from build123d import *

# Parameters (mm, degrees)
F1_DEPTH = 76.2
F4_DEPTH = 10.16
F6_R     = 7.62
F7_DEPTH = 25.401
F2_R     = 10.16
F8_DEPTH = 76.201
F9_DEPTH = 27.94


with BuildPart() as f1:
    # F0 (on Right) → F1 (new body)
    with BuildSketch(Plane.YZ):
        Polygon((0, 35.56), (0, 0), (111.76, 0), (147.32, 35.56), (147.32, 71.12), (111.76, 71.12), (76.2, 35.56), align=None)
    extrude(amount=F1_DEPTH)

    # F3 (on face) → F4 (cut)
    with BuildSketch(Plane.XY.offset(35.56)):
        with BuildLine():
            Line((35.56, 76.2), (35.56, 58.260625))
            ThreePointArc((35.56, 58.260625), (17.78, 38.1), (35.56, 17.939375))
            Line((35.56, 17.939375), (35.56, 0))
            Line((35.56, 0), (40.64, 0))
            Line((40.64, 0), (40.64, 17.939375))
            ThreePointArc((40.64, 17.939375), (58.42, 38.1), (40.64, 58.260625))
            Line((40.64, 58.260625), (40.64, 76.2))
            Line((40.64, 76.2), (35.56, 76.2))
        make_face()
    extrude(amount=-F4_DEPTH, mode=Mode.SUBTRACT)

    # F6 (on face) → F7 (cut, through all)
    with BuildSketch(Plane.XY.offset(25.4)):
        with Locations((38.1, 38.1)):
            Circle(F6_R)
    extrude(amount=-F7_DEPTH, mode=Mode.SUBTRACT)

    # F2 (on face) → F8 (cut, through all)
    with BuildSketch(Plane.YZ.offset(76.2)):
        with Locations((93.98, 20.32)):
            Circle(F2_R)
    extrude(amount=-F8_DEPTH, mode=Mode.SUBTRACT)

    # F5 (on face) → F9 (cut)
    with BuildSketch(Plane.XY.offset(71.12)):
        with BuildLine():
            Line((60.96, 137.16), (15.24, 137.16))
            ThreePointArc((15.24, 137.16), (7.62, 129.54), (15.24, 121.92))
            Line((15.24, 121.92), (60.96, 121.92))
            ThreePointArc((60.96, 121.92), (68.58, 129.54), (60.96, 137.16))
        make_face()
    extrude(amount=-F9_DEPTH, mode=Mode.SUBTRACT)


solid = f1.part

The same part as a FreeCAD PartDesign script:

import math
import FreeCAD as App
import Part
import Sketcher
Q = App.Units.Quantity

doc = App.newDocument("Part")
body = doc.addObject("PartDesign::Body", "Body")

# Sketch on YZ plane
sketch1 = body.newObject("Sketcher::SketchObject", "Sketch")
sketch1.AttachmentSupport = (doc.getObject("YZ_Plane"), [""])
sketch1.MapMode = "FlatFace"
sketch1.addGeometry([
    Part.LineSegment(App.Vector(0, 36, 0), App.Vector(0, 0, 0)),  # 0
    Part.LineSegment(App.Vector(0, 0, 0), App.Vector(112, 0, 0)),  # 1
    Part.LineSegment(App.Vector(112, 0, 0), App.Vector(147, 36, 0)),  # 2
    Part.LineSegment(App.Vector(147, 36, 0), App.Vector(147, 71, 0)),  # 3
    Part.LineSegment(App.Vector(147, 71, 0), App.Vector(112, 71, 0)),  # 4
    Part.LineSegment(App.Vector(112, 71, 0), App.Vector(76, 36, 0)),  # 5
    Part.LineSegment(App.Vector(76, 36, 0), App.Vector(0, 36, 0)),  # 6
], False)
sketch1.addConstraint([
    Sketcher.Constraint("Coincident", 0, 2, 1, 1),
    Sketcher.Constraint("Coincident", 1, 2, 2, 1),
    Sketcher.Constraint("Coincident", 2, 2, 3, 1),
    Sketcher.Constraint("Coincident", 3, 2, 4, 1),
    Sketcher.Constraint("Coincident", 4, 2, 5, 1),
    Sketcher.Constraint("Coincident", 5, 2, 6, 1),
    Sketcher.Constraint("Coincident", 6, 2, 0, 1),
    Sketcher.Constraint("Vertical", 0),
    Sketcher.Constraint("Horizontal", 1),
    Sketcher.Constraint("Vertical", 3),
    Sketcher.Constraint("Horizontal", 4),
    Sketcher.Constraint("Horizontal", 6),
    Sketcher.Constraint("Coincident", 0, 2, -1, 1),
    Sketcher.Constraint("Parallel", 2, 5),
    Sketcher.Constraint("Horizontal", 2, 2, 5, 2),
    Sketcher.Constraint("Vertical", 1, 2, 4, 2),
    Sketcher.Constraint("Equal", 4, 0),
    Sketcher.Constraint("Equal", 0, 3),
    Sketcher.Constraint("DistanceX", 6, 2, 6, 1, Q("3 in")),
    Sketcher.Constraint("DistanceX", 1, 1, 1, 2, Q("4.4 in")),
])
pad1 = body.newObject("PartDesign::Pad", "Pad")
pad1.Profile = sketch1
pad1.Length = Q("3 in")

# Sketch on XY plane
sketch2 = body.newObject("Sketcher::SketchObject", "Sketch001")
sketch2.AttachmentSupport = (doc.getObject("XY_Plane"), [""])
sketch2.MapMode = "FlatFace"
sketch2.AttachmentOffset = App.Placement(App.Vector(0, 0, 1.4 * 25.4), App.Rotation())
sketch2.addGeometry([
    Part.LineSegment(App.Vector(36, 76, 0), App.Vector(36, 58, 0)),  # 0
    Part.ArcOfCircle(Part.Circle(App.Vector(38, 38, 0), App.Vector(0, 0, 1), 20), math.radians(97), math.radians(263)),  # 1
    Part.LineSegment(App.Vector(36, 18, 0), App.Vector(36, 0, 0)),  # 2
    Part.LineSegment(App.Vector(36, 0, 0), App.Vector(41, 0, 0)),  # 3
    Part.LineSegment(App.Vector(41, 0, 0), App.Vector(41, 18, 0)),  # 4
    Part.ArcOfCircle(Part.Circle(App.Vector(38, 38, 0), App.Vector(0, 0, 1), 20), math.radians(-83), math.radians(83)),  # 5
    Part.LineSegment(App.Vector(41, 58, 0), App.Vector(41, 76, 0)),  # 6
    Part.LineSegment(App.Vector(41, 76, 0), App.Vector(36, 76, 0)),  # 7
], False)
sketch2.addConstraint([
    Sketcher.Constraint("Coincident", 0, 2, 1, 1),
    Sketcher.Constraint("Coincident", 1, 2, 2, 1),
    Sketcher.Constraint("Coincident", 2, 2, 3, 1),
    Sketcher.Constraint("Coincident", 3, 2, 4, 1),
    Sketcher.Constraint("Coincident", 4, 2, 5, 1),
    Sketcher.Constraint("Coincident", 5, 2, 6, 1),
    Sketcher.Constraint("Coincident", 6, 2, 7, 1),
    Sketcher.Constraint("Coincident", 7, 2, 0, 1),
    Sketcher.Constraint("Vertical", 0),
    Sketcher.Constraint("Vertical", 2),
    Sketcher.Constraint("Horizontal", 3),
    Sketcher.Constraint("Vertical", 4),
    Sketcher.Constraint("Vertical", 6),
    Sketcher.Constraint("Horizontal", 7),
    Sketcher.Constraint("Coincident", 5, 3, 1, 3),
    Sketcher.Constraint("Equal", 1, 5),
    Sketcher.Constraint("PointOnObject", 2, 2, -1),
    Sketcher.Constraint("Horizontal", 1, 2, 4, 2),
    Sketcher.Constraint("Horizontal", 0, 2, 5, 2),
    Sketcher.Constraint("Vertical", 0, 2, 1, 2),
    Sketcher.Constraint("Equal", 0, 2),
    Sketcher.Constraint("Radius", 1, Q("0.8 in")),
    Sketcher.Constraint("DistanceX", 3, 1, 3, 2, Q("0.2 in")),
    Sketcher.Constraint("DistanceY", -1, 1, 6, 2, Q("3 in")),
    Sketcher.Constraint("DistanceX", -1, 1, 1, 3, Q("1.5 in")),
])
pocket1 = body.newObject("PartDesign::Pocket", "Pocket")
pocket1.Profile = sketch2
pocket1.Length = Q("0.4 in")

# Sketch on XY plane
sketch3 = body.newObject("Sketcher::SketchObject", "Sketch002")
sketch3.AttachmentSupport = (doc.getObject("XY_Plane"), [""])
sketch3.MapMode = "FlatFace"
sketch3.AttachmentOffset = App.Placement(App.Vector(0, 0, 1 * 25.4), App.Rotation())
sketch3.addGeometry(Part.Circle(App.Vector(38, 38, 0), App.Vector(0, 0, 1), 8), False)
sketch3.addConstraint([
    Sketcher.Constraint("Diameter", 0, Q("0.6 in")),
    Sketcher.Constraint("DistanceX", -1, 1, 0, 3, Q("1.5 in")),
    Sketcher.Constraint("DistanceY", -1, 1, 0, 3, Q("1.5 in")),
])
pocket2 = body.newObject("PartDesign::Pocket", "Pocket001")
pocket2.Profile = sketch3
pocket2.Type = "ThroughAll"

# Sketch on YZ plane
sketch4 = body.newObject("Sketcher::SketchObject", "Sketch003")
sketch4.AttachmentSupport = (doc.getObject("YZ_Plane"), [""])
sketch4.MapMode = "FlatFace"
sketch4.AttachmentOffset = App.Placement(App.Vector(0, 0, 3 * 25.4), App.Rotation())
sketch4.addGeometry(Part.Circle(App.Vector(94, 20, 0), App.Vector(0, 0, 1), 10), False)
sketch4.addConstraint([
    Sketcher.Constraint("Diameter", 0, Q("0.8 in")),
    Sketcher.Constraint("DistanceX", -1, 1, 0, 3, Q("3.7 in")),
    Sketcher.Constraint("DistanceY", -1, 1, 0, 3, Q("0.8 in")),
])
pocket3 = body.newObject("PartDesign::Pocket", "Pocket002")
pocket3.Profile = sketch4
pocket3.Type = "ThroughAll"

# Sketch on XY plane
sketch5 = body.newObject("Sketcher::SketchObject", "Sketch004")
sketch5.AttachmentSupport = (doc.getObject("XY_Plane"), [""])
sketch5.MapMode = "FlatFace"
sketch5.AttachmentOffset = App.Placement(App.Vector(0, 0, 2.8 * 25.4), App.Rotation())
sketch5.addGeometry([
    Part.LineSegment(App.Vector(61, 137, 0), App.Vector(15, 137, 0)),
    Part.ArcOfCircle(Part.Circle(App.Vector(15, 130, 0), App.Vector(0, 0, 1), 8), math.radians(90), math.radians(270)),
    Part.LineSegment(App.Vector(15, 122, 0), App.Vector(61, 122, 0)),
    Part.ArcOfCircle(Part.Circle(App.Vector(61, 130, 0), App.Vector(0, 0, 1), 8), math.radians(-90), math.radians(90)),
], False)
sketch5.addConstraint([
    Sketcher.Constraint("Tangent", 0, 2, 1, 1),
    Sketcher.Constraint("Tangent", 1, 2, 2, 1),
    Sketcher.Constraint("Tangent", 2, 2, 3, 1),
    Sketcher.Constraint("Tangent", 3, 2, 0, 1),
    Sketcher.Constraint("Horizontal", 0),
    Sketcher.Constraint("Horizontal", 2),
    Sketcher.Constraint("Radius", 1, Q("0.3 in")),
    Sketcher.Constraint("DistanceX", 0, 2, 0, 1, Q("1.8 in")),
    Sketcher.Constraint("DistanceX", -1, 1, 1, 3, Q("0.6 in")),
    Sketcher.Constraint("DistanceY", -1, 1, 1, 3, Q("5.1 in")),
])
pocket4 = body.newObject("PartDesign::Pocket", "Pocket003")
pocket4.Profile = sketch5
pocket4.Length = Q("1.1 in")

doc.recompute()
